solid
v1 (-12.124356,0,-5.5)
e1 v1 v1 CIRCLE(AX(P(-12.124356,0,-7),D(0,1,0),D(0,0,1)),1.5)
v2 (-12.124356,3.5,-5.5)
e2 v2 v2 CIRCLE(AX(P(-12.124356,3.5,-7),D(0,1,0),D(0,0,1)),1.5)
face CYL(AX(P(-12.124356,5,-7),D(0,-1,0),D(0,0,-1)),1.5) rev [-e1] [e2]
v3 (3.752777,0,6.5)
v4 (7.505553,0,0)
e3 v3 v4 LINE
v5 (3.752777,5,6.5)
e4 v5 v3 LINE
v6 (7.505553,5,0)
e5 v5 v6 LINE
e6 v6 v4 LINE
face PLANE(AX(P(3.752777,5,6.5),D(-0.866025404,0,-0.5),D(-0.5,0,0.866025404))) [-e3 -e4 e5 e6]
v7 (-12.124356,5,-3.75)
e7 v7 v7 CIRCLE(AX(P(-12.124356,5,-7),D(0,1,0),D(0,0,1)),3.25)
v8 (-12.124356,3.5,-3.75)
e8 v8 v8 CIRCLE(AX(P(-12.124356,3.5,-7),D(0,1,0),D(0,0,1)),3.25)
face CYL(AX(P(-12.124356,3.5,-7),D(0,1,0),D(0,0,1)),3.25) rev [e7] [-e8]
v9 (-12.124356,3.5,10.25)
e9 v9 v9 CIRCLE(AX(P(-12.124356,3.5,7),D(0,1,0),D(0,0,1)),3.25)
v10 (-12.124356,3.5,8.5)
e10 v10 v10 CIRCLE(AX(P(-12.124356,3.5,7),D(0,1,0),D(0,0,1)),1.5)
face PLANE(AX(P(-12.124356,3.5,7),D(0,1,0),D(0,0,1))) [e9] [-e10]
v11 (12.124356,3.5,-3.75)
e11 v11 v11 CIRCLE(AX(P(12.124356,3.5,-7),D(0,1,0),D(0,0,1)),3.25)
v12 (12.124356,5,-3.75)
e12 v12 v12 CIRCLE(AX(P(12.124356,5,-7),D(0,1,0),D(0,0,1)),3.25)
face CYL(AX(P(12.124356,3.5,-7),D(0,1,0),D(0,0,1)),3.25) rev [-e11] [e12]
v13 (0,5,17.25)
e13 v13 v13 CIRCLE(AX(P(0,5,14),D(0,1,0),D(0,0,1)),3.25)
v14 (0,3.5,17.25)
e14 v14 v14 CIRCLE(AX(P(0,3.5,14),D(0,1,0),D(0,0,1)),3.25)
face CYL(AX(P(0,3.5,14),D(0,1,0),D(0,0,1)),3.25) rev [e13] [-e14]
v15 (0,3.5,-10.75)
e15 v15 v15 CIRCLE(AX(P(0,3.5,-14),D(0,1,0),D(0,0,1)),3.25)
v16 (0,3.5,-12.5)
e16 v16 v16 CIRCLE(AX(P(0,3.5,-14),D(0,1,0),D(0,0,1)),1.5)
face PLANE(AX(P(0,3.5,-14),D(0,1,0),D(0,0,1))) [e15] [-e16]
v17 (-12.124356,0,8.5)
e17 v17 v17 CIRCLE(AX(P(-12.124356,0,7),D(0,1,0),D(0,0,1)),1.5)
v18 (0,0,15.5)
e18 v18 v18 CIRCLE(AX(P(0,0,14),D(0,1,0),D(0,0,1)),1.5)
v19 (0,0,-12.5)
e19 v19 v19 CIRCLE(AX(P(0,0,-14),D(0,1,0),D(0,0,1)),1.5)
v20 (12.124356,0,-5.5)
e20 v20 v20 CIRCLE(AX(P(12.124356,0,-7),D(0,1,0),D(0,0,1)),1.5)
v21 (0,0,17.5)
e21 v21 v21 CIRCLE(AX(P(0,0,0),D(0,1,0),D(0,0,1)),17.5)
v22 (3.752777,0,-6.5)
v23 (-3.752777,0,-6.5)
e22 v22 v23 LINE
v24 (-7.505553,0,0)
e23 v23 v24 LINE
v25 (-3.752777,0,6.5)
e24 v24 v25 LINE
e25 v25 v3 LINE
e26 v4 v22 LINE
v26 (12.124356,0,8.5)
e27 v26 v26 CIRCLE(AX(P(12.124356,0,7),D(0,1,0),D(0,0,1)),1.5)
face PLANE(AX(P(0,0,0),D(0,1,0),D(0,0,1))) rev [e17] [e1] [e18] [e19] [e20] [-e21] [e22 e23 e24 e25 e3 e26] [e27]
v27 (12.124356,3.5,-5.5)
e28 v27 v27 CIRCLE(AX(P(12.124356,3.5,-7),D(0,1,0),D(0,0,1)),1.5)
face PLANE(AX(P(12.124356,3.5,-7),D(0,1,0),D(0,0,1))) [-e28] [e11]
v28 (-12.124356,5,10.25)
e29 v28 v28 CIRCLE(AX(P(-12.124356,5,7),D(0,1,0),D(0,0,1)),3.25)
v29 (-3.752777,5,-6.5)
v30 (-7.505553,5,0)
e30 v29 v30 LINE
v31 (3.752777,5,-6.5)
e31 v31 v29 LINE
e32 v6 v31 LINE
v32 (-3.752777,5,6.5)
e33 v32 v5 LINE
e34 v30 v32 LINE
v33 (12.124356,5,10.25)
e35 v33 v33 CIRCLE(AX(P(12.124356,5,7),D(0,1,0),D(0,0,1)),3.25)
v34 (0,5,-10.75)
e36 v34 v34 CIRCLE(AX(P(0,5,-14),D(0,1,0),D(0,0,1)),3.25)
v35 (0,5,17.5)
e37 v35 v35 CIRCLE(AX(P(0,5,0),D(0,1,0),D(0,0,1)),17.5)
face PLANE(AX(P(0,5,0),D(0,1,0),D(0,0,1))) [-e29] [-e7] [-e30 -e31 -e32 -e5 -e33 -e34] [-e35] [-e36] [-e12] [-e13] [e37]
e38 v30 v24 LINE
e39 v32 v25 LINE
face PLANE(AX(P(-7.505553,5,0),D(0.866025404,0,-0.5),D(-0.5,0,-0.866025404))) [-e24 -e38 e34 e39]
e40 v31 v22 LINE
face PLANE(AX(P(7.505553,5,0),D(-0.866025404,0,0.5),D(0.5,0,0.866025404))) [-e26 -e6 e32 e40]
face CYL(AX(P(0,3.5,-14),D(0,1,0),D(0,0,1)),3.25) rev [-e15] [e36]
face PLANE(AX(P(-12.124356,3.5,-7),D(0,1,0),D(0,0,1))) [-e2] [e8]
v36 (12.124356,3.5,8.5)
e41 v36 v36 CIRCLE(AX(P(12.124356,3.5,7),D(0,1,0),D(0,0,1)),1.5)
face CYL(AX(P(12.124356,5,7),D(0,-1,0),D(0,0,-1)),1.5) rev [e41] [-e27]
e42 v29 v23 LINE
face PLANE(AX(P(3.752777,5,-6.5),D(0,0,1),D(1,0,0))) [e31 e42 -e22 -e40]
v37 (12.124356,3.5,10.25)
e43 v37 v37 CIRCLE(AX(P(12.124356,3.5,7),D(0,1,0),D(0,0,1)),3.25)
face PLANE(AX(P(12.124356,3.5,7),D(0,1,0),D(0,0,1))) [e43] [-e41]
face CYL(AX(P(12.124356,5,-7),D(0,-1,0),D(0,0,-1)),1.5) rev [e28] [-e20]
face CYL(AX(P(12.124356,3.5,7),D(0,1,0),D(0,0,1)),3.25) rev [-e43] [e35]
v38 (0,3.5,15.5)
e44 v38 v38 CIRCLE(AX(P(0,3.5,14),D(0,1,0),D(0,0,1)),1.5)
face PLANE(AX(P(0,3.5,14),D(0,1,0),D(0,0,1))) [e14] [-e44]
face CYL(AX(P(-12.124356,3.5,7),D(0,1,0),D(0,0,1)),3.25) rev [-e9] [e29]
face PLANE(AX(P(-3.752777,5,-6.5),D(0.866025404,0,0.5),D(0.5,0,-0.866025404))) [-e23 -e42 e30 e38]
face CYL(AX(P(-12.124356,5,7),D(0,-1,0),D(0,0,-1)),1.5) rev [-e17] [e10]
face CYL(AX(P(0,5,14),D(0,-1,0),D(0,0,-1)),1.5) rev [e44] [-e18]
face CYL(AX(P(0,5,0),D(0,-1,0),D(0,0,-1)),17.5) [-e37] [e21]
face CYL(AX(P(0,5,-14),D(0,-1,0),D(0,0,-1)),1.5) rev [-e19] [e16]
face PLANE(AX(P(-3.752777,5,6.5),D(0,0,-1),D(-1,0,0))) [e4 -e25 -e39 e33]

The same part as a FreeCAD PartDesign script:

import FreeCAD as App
import Part
import Sketcher
Q = App.Units.Quantity

doc = App.newDocument("Part")
body = doc.addObject("PartDesign::Body", "Body")

sketch1 = doc.addObject("Sketcher::SketchObject", "Sketch")
body.addObject(sketch1)
sketch1.AttachmentSupport = (doc.XZ_Plane, [""])
sketch1.MapMode = "FlatFace"
sketch1.addGeometry(Part.Circle(App.Vector(0, 0, 0), App.Vector(0, 0, 1), 17.5), False)
sketch1.addGeometry(Part.Circle(App.Vector(-12.1, -7, 0), App.Vector(0, 0, 1), 1.5), False)
sketch1.addGeometry(Part.Circle(App.Vector(0, -14, 0), App.Vector(0, 0, 1), 1.5), False)
sketch1.addGeometry(Part.Circle(App.Vector(-12.1, 7, 0), App.Vector(0, 0, 1), 1.5), False)
sketch1.addGeometry(Part.Circle(App.Vector(12.1, -7, 0), App.Vector(0, 0, 1), 1.5), False)
sketch1.addGeometry(Part.LineSegment(App.Vector(3.8, -6.5, 0), App.Vector(7.5, 0, 0)), False)
sketch1.addGeometry(Part.LineSegment(App.Vector(7.5, 0, 0), App.Vector(3.8, 6.5, 0)), False)
sketch1.addGeometry(Part.LineSegment(App.Vector(3.8, 6.5, 0), App.Vector(-3.8, 6.5, 0)), False)
sketch1.addGeometry(Part.LineSegment(App.Vector(-3.8, 6.5, 0), App.Vector(-7.5, 0, 0)), False)
sketch1.addGeometry(Part.LineSegment(App.Vector(-7.5, 0, 0), App.Vector(-3.8, -6.5, 0)), False)
sketch1.addGeometry(Part.LineSegment(App.Vector(-3.8, -6.5, 0), App.Vector(3.8, -6.5, 0)), False)
sketch1.addGeometry(Part.Circle(App.Vector(0, 14, 0), App.Vector(0, 0, 1), 1.5), False)
sketch1.addGeometry(Part.Circle(App.Vector(12.1, 7, 0), App.Vector(0, 0, 1), 1.5), False)
sketch1.addConstraint(Sketcher.Constraint("Coincident", 5, 2, 6, 1))
sketch1.addConstraint(Sketcher.Constraint("Coincident", 6, 2, 7, 1))
sketch1.addConstraint(Sketcher.Constraint("Coincident", 7, 2, 8, 1))
sketch1.addConstraint(Sketcher.Constraint("Coincident", 8, 2, 9, 1))
sketch1.addConstraint(Sketcher.Constraint("Coincident", 9, 2, 10, 1))
sketch1.addConstraint(Sketcher.Constraint("Coincident", 10, 2, 5, 1))
sketch1.addConstraint(Sketcher.Constraint("Horizontal", 7))
sketch1.addConstraint(Sketcher.Constraint("Horizontal", 10))
sketch1.addConstraint(Sketcher.Constraint("Coincident", 0, 3, -1, 1))
sketch1.addConstraint(Sketcher.Constraint("Equal", 1, 2))
sketch1.addConstraint(Sketcher.Constraint("Equal", 2, 3))
sketch1.addConstraint(Sketcher.Constraint("Equal", 3, 4))
sketch1.addConstraint(Sketcher.Constraint("Equal", 4, 11))
sketch1.addConstraint(Sketcher.Constraint("Equal", 11, 12))
sketch1.addConstraint(Sketcher.Constraint("Symmetric", 3, 3, 4, 3, -1, 1))
sketch1.addConstraint(Sketcher.Constraint("Symmetric", 2, 3, 11, 3, -1, 1))
sketch1.addConstraint(Sketcher.Constraint("Symmetric", 1, 3, 12, 3, -1, 1))
sketch1.addConstraint(Sketcher.Constraint("Symmetric", 5, 2, 8, 2, -1, 1))
sketch1.addConstraint(Sketcher.Constraint("Symmetric", 6, 2, 9, 2, -1, 1))
sketch1.addConstraint(Sketcher.Constraint("Symmetric", 1, 3, 4, 3, -2))
sketch1.addConstraint(Sketcher.Constraint("PointOnObject", 2, 3, -2))
sketch1.addConstraint(Sketcher.Constraint("PointOnObject", 5, 2, -1))
sketch1.addConstraint(Sketcher.Constraint("Parallel", 5, 8))
sketch1.addConstraint(Sketcher.Constraint("Vertical", 7, 2, 9, 2))
sketch1.addConstraint(Sketcher.Constraint("Diameter", 0, 35.0))
sketch1.addConstraint(Sketcher.Constraint("Diameter", 1, 3.0))
sketch1.addConstraint(Sketcher.Constraint("Angle", 5, Q("60 deg")))
sketch1.addConstraint(Sketcher.Constraint("DistanceY", 1, 3, -1, 1, 7.0))
sketch1.addConstraint(Sketcher.Constraint("DistanceY", 2, 3, -1, 1, 14.0))
sketch1.addConstraint(Sketcher.Constraint("DistanceY", -1, 1, 6, 2, 6.5))
sketch1.addConstraint(Sketcher.Constraint("DistanceX", 7, 2, 7, 1, 7.505554))
sketch1.addConstraint(Sketcher.Constraint("DistanceX", 1, 3, 4, 3, 24.248711))
pad1 = doc.addObject("PartDesign::Pad", "Pad")
body.addObject(pad1)
pad1.Profile = sketch1
pad1.Length = 5
pad1.Reversed = True

sketch2 = doc.addObject("Sketcher::SketchObject", "Sketch001")
body.addObject(sketch2)
sketch2.AttachmentSupport = (doc.XZ_Plane, [""])
sketch2.MapMode = "FlatFace"
sketch2.AttachmentOffset = App.Placement(App.Vector(0, 0, -5), App.Rotation())
sketch2.addGeometry(Part.Circle(App.Vector(0, -14, 0), App.Vector(0, 0, 1), 3.2), False)
sketch2.addGeometry(Part.Circle(App.Vector(12.1, -7, 0), App.Vector(0, 0, 1), 3.2), False)
sketch2.addGeometry(Part.Circle(App.Vector(12.1, 7, 0), App.Vector(0, 0, 1), 3.2), False)
sketch2.addGeometry(Part.Circle(App.Vector(0, 14, 0), App.Vector(0, 0, 1), 3.2), False)
sketch2.addGeometry(Part.Circle(App.Vector(-12.1, 7, 0), App.Vector(0, 0, 1), 3.2), False)
sketch2.addGeometry(Part.Circle(App.Vector(-12.1, -7, 0), App.Vector(0, 0, 1), 3.2), False)
sketch2.addConstraint(Sketcher.Constraint("Equal", 0, 1))
sketch2.addConstraint(Sketcher.Constraint("Equal", 1, 2))
sketch2.addConstraint(Sketcher.Constraint("Equal", 2, 3))
sketch2.addConstraint(Sketcher.Constraint("Equal", 3, 4))
sketch2.addConstraint(Sketcher.Constraint("Equal", 4, 5))
sketch2.addConstraint(Sketcher.Constraint("Symmetric", 0, 3, 3, 3, -1, 1))
sketch2.addConstraint(Sketcher.Constraint("Symmetric", 1, 3, 4, 3, -1, 1))
sketch2.addConstraint(Sketcher.Constraint("Symmetric", 2, 3, 5, 3, -1, 1))
sketch2.addConstraint(Sketcher.Constraint("Symmetric", 2, 3, 4, 3, -2))
sketch2.addConstraint(Sketcher.Constraint("PointOnObject", 0, 3, -2))
sketch2.addConstraint(Sketcher.Constraint("Diameter", 0, 6.5))
sketch2.addConstraint(Sketcher.Constraint("DistanceY", 0, 3, -1, 1, 14.0))
sketch2.addConstraint(Sketcher.Constraint("DistanceY", 1, 3, -1, 1, 7.0))
sketch2.addConstraint(Sketcher.Constraint("DistanceX", 4, 3, 2, 3, 24.248711))
pocket1 = doc.addObject("PartDesign::Pocket", "Pocket")
body.addObject(pocket1)
pocket1.Profile = sketch2
pocket1.Length = 1.5
pocket1.Reversed = True

doc.recompute()
